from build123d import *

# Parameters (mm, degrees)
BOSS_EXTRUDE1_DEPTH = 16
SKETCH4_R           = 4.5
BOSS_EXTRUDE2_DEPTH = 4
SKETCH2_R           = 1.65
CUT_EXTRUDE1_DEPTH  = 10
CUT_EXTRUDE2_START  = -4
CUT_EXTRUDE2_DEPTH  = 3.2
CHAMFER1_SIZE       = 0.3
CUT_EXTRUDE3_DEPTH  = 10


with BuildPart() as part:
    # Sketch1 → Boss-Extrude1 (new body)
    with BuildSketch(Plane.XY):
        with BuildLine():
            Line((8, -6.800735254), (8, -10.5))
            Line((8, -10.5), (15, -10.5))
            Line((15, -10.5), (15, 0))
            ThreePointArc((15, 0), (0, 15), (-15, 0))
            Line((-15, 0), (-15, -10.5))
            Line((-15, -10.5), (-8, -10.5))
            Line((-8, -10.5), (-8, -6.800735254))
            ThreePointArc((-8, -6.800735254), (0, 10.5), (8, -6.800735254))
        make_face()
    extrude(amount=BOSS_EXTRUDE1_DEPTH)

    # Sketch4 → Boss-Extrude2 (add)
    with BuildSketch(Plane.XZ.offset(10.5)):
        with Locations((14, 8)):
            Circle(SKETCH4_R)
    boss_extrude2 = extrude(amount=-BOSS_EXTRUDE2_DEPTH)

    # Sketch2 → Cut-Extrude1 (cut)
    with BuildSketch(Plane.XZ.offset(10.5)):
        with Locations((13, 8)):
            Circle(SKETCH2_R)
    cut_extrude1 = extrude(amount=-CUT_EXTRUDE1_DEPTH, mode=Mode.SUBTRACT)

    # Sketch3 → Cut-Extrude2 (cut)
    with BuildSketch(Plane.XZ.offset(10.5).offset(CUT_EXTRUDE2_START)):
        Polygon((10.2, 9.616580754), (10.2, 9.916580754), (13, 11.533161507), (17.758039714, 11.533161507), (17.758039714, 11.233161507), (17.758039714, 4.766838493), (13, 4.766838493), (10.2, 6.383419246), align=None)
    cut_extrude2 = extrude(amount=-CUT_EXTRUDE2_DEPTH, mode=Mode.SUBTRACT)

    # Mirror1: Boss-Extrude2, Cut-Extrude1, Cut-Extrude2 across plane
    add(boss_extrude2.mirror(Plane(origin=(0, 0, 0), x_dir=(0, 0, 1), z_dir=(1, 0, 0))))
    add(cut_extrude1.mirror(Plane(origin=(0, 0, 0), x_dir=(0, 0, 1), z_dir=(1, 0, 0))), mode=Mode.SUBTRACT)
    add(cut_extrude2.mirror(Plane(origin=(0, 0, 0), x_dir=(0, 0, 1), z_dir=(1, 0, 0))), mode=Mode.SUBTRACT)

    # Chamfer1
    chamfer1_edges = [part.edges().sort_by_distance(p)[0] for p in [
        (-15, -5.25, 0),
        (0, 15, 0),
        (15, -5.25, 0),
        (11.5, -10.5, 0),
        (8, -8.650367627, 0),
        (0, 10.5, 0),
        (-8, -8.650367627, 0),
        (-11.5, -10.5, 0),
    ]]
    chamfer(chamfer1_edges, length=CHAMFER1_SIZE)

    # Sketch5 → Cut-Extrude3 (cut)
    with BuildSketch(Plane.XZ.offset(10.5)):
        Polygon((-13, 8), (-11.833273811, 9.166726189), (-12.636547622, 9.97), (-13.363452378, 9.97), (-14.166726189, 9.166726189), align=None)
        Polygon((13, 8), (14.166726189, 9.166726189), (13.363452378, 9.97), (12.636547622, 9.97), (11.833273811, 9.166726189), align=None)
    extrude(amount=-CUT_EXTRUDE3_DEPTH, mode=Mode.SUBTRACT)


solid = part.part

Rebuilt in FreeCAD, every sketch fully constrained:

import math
import FreeCAD as App
import Part
import Sketcher

V = App.Vector
Q = App.Units.Quantity


def edges_at(feature, points):
    """Names of the edges that pass closest to the given points."""
    edges = feature.Shape.Edges
    near = lambda p: min(range(len(edges)), key=lambda i: edges[i].distToShape(Part.Vertex(*p))[0])
    return sorted({f"Edge{near(p) + 1}" for p in points})

doc = App.newDocument("Part")
body = doc.addObject("PartDesign::Body", "Body")

sketch1 = doc.addObject("Sketcher::SketchObject", "Sketch")
body.addObject(sketch1)
sketch1.AttachmentSupport = (doc.XY_Plane, [""])
sketch1.MapMode = "FlatFace"
sketch1.addGeometry(Part.LineSegment(V(8, -6.8, 0), V(8, -10.5, 0)), False)
sketch1.addGeometry(Part.LineSegment(V(8, -10.5, 0), V(15, -10.5, 0)), False)
sketch1.addGeometry(Part.LineSegment(V(15, -10.5, 0), V(15, 0, 0)), False)
sketch1.addGeometry(Part.ArcOfCircle(Part.Circle(V(0, 0, 0), V(0, 0, 1), 15), math.radians(0), math.radians(180)), False)
sketch1.addGeometry(Part.LineSegment(V(-15, 0, 0), V(-15, -10.5, 0)), False)
sketch1.addGeometry(Part.LineSegment(V(-15, -10.5, 0), V(-8, -10.5, 0)), False)
sketch1.addGeometry(Part.LineSegment(V(-8, -10.5, 0), V(-8, -6.8, 0)), False)
sketch1.addGeometry(Part.ArcOfCircle(Part.Circle(V(0, 0, 0), V(0, 0, 1), 10.5), math.radians(-40), math.radians(220)), False)
sketch1.addConstraint(Sketcher.Constraint("Coincident", 0, 2, 1, 1))
sketch1.addConstraint(Sketcher.Constraint("Coincident", 1, 2, 2, 1))
sketch1.addConstraint(Sketcher.Constraint("Tangent", 2, 2, 3, 1))
sketch1.addConstraint(Sketcher.Constraint("Tangent", 3, 2, 4, 1))
sketch1.addConstraint(Sketcher.Constraint("Coincident", 4, 2, 5, 1))
sketch1.addConstraint(Sketcher.Constraint("Coincident", 5, 2, 6, 1))
sketch1.addConstraint(Sketcher.Constraint("Coincident", 6, 2, 7, 2))
sketch1.addConstraint(Sketcher.Constraint("Coincident", 7, 1, 0, 1))
sketch1.addConstraint(Sketcher.Constraint("Vertical", 0))
sketch1.addConstraint(Sketcher.Constraint("Horizontal", 1))
sketch1.addConstraint(Sketcher.Constraint("Vertical", 2))
sketch1.addConstraint(Sketcher.Constraint("Vertical", 4))
sketch1.addConstraint(Sketcher.Constraint("Horizontal", 5))
sketch1.addConstraint(Sketcher.Constraint("Vertical", 6))
sketch1.addConstraint(Sketcher.Constraint("Coincident", 3, 3, -1, 1))
sketch1.addConstraint(Sketcher.Constraint("Coincident", 7, 3, -1, 1))
sketch1.addConstraint(Sketcher.Constraint("Symmetric", 0, 2, 5, 2, -2))
sketch1.addConstraint(Sketcher.Constraint("Radius", 3, Q("15 mm")))
sketch1.addConstraint(Sketcher.Constraint("Radius", 7, Q("10.5 mm")))
sketch1.addConstraint(Sketcher.Constraint("DistanceX", 1, 1, 1, 2, Q("7 mm")))
sketch1.addConstraint(Sketcher.Constraint("DistanceY", 2, 1, 2, 2, Q("10.5 mm")))
pad1 = doc.addObject("PartDesign::Pad", "Pad")
body.addObject(pad1)
pad1.Profile = sketch1
pad1.Length = 16

sketch2 = doc.addObject("Sketcher::SketchObject", "Sketch001")
body.addObject(sketch2)
sketch2.AttachmentSupport = (doc.XZ_Plane, [""])
sketch2.MapMode = "FlatFace"
sketch2.AttachmentOffset = App.Placement(V(0, 0, 10.5), App.Rotation())
sketch2.addGeometry(Part.Circle(V(14, 8, 0), V(0, 0, 1), 4.5), False)
sketch2.addConstraint(Sketcher.Constraint("Diameter", 0, Q("9 mm")))
sketch2.addConstraint(Sketcher.Constraint("DistanceX", -1, 1, 0, 3, Q("14 mm")))
sketch2.addConstraint(Sketcher.Constraint("DistanceY", -1, 1, 0, 3, Q("8 mm")))
pad2 = doc.addObject("PartDesign::Pad", "Pad001")
body.addObject(pad2)
pad2.Profile = sketch2
pad2.Length = 4
pad2.Reversed = True

sketch3 = doc.addObject("Sketcher::SketchObject", "Sketch002")
body.addObject(sketch3)
sketch3.AttachmentSupport = (doc.XZ_Plane, [""])
sketch3.MapMode = "FlatFace"
sketch3.AttachmentOffset = App.Placement(V(0, 0, 10.5), App.Rotation())
sketch3.addGeometry(Part.Circle(V(13, 8, 0), V(0, 0, 1), 1.6), False)
sketch3.addConstraint(Sketcher.Constraint("Diameter", 0, Q("3.3 mm")))
sketch3.addConstraint(Sketcher.Constraint("DistanceX", -1, 1, 0, 3, Q("13 mm")))
sketch3.addConstraint(Sketcher.Constraint("DistanceY", -1, 1, 0, 3, Q("8 mm")))
pocket1 = doc.addObject("PartDesign::Pocket", "Pocket")
body.addObject(pocket1)
pocket1.Profile = sketch3
pocket1.Length = 10

sketch4 = doc.addObject("Sketcher::SketchObject", "Sketch003")
body.addObject(sketch4)
sketch4.AttachmentSupport = (doc.XZ_Plane, [""])
sketch4.MapMode = "FlatFace"
sketch4.AttachmentOffset = App.Placement(V(0, 0, 6.5), App.Rotation())
sketch4.addGeometry(Part.LineSegment(V(10.2, 9.9, 0), V(10.2, 6.4, 0)), False)
sketch4.addGeometry(Part.LineSegment(V(10.2, 6.4, 0), V(13, 4.8, 0)), False)
sketch4.addGeometry(Part.LineSegment(V(13, 4.8, 0), V(17.8, 4.8, 0)), False)
sketch4.addGeometry(Part.LineSegment(V(17.8, 4.8, 0), V(17.8, 11.5, 0)), False)
sketch4.addGeometry(Part.LineSegment(V(17.8, 11.5, 0), V(13, 11.5, 0)), False)
sketch4.addGeometry(Part.LineSegment(V(13, 11.5, 0), V(10.2, 9.9, 0)), False)
sketch4.addConstraint(Sketcher.Constraint("Coincident", 0, 2, 1, 1))
sketch4.addConstraint(Sketcher.Constraint("Coincident", 1, 2, 2, 1))
sketch4.addConstraint(Sketcher.Constraint("Coincident", 2, 2, 3, 1))
sketch4.addConstraint(Sketcher.Constraint("Coincident", 3, 2, 4, 1))
sketch4.addConstraint(Sketcher.Constraint("Coincident", 4, 2, 5, 1))
sketch4.addConstraint(Sketcher.Constraint("Coincident", 5, 2, 0, 1))
sketch4.addConstraint(Sketcher.Constraint("Vertical", 0))
sketch4.addConstraint(Sketcher.Constraint("Horizontal", 2))
sketch4.addConstraint(Sketcher.Constraint("Vertical", 3))
sketch4.addConstraint(Sketcher.Constraint("Horizontal", 4))
sketch4.addConstraint(Sketcher.Constraint("Vertical", 1, 2, 4, 2))
sketch4.addConstraint(Sketcher.Constraint("Equal", 1, 5))
sketch4.addConstraint(Sketcher.Constraint("Angle", 1, Q("-30 deg")))
sketch4.addConstraint(Sketcher.Constraint("DistanceX", -1, 1, 1, 2, Q("13 mm")))
sketch4.addConstraint(Sketcher.Constraint("DistanceX", -1, 1, 0, 2, Q("10.2 mm")))
sketch4.addConstraint(Sketcher.Constraint("DistanceX", 2, 1, 2, 2, Q("4.75804 mm")))
sketch4.addConstraint(Sketcher.Constraint("DistanceY", 0, 2, 0, 1, Q("3.533162 mm")))
sketch4.addConstraint(Sketcher.Constraint("DistanceY", -1, 1, 0, 2, Q("6.383419 mm")))
pocket2 = doc.addObject("PartDesign::Pocket", "Pocket001")
body.addObject(pocket2)
pocket2.Profile = sketch4
pocket2.Length = 3.2
doc.recompute()

mirrored = doc.addObject("PartDesign::Mirrored", "Mirrored")
body.addObject(mirrored)
mirrored.Originals = [pad2, pocket1, pocket2]
mirrored.MirrorPlane = (doc.YZ_Plane, [""])
body.Tip = mirrored
doc.recompute()

chamfer = doc.addObject("PartDesign::Chamfer", "Chamfer")
body.addObject(chamfer)
chamfer.Base = (mirrored, edges_at(mirrored, [
    (-15, -5.25, 0),
    (0, 15, 0),
    (15, -5.25, 0),
    (11.5, -10.5, 0),
    (8, -8.65, 0),
    (0, 10.5, 0),
    (-8, -8.65, 0),
    (-11.5, -10.5, 0),
]))
chamfer.Size = 0.3

sketch5 = doc.addObject("Sketcher::SketchObject", "Sketch004")
body.addObject(sketch5)
sketch5.AttachmentSupport = (doc.XZ_Plane, [""])
sketch5.MapMode = "FlatFace"
sketch5.AttachmentOffset = App.Placement(V(0, 0, 10.5), App.Rotation())
sketch5.addGeometry(Part.LineSegment(V(-13, 8, 0), V(-11.8, 9.2, 0)), False)
sketch5.addGeometry(Part.LineSegment(V(-11.8, 9.2, 0), V(-12.6, 10, 0)), False)
sketch5.addGeometry(Part.LineSegment(V(-12.6, 10, 0), V(-13.4, 10, 0)), False)
sketch5.addGeometry(Part.LineSegment(V(-13.4, 10, 0), V(-14.2, 9.2, 0)), False)
sketch5.addGeometry(Part.LineSegment(V(-14.2, 9.2, 0), V(-13, 8, 0)), False)
sketch5.addGeometry(Part.LineSegment(V(13, 8, 0), V(14.2, 9.2, 0)), False)
sketch5.addGeometry(Part.LineSegment(V(14.2, 9.2, 0), V(13.4, 10, 0)), False)
sketch5.addGeometry(Part.LineSegment(V(13.4, 10, 0), V(12.6, 10, 0)), False)
sketch5.addGeometry(Part.LineSegment(V(12.6, 10, 0), V(11.8, 9.2, 0)), False)
sketch5.addGeometry(Part.LineSegment(V(11.8, 9.2, 0), V(13, 8, 0)), False)
sketch5.addConstraint(Sketcher.Constraint("Coincident", 0, 2, 1, 1))
sketch5.addConstraint(Sketcher.Constraint("Coincident", 1, 2, 2, 1))
sketch5.addConstraint(Sketcher.Constraint("Coincident", 2, 2, 3, 1))
sketch5.addConstraint(Sketcher.Constraint("Coincident", 3, 2, 4, 1))
sketch5.addConstraint(Sketcher.Constraint("Coincident", 4, 2, 0, 1))
sketch5.addConstraint(Sketcher.Constraint("Coincident", 5, 2, 6, 1))
sketch5.addConstraint(Sketcher.Constraint("Coincident", 6, 2, 7, 1))
sketch5.addConstraint(Sketcher.Constraint("Coincident", 7, 2, 8, 1))
sketch5.addConstraint(Sketcher.Constraint("Coincident", 8, 2, 9, 1))
sketch5.addConstraint(Sketcher.Constraint("Coincident", 9, 2, 5, 1))
sketch5.addConstraint(Sketcher.Constraint("Horizontal", 2))
sketch5.addConstraint(Sketcher.Constraint("Horizontal", 7))
sketch5.addConstraint(Sketcher.Constraint("Symmetric", 3, 2, 5, 2, -2))
sketch5.addConstraint(Sketcher.Constraint("Symmetric", 2, 2, 6, 2, -2))
sketch5.addConstraint(Sketcher.Constraint("Symmetric", 0, 2, 8, 2, -2))
sketch5.addConstraint(Sketcher.Constraint("Symmetric", 4, 2, 9, 2, -2))
sketch5.addConstraint(Sketcher.Constraint("Perpendicular", 0, 1))
sketch5.addConstraint(Sketcher.Constraint("Perpendicular", 1, 3))
sketch5.addConstraint(Sketcher.Constraint("Perpendicular", 3, 4))
sketch5.addConstraint(Sketcher.Constraint("Perpendicular", 4, 5))
sketch5.addConstraint(Sketcher.Constraint("Perpendicular", 6, 8))
sketch5.addConstraint(Sketcher.Constraint("Horizontal", 0, 2, 3, 2))
sketch5.addConstraint(Sketcher.Constraint("DistanceX", 4, 2, -1, 1, Q("13 mm")))
sketch5.addConstraint(Sketcher.Constraint("DistanceY", -1, 1, 4, 2, Q("8 mm")))
sketch5.addConstraint(Sketcher.Constraint("Distance", 0, Q("1.65 mm")))
sketch5.addConstraint(Sketcher.Constraint("DistanceY", -1, 1, 1, 2, Q("9.97 mm")))
pocket3 = doc.addObject("PartDesign::Pocket", "Pocket002")
body.addObject(pocket3)
pocket3.Profile = sketch5
pocket3.Length = 10

doc.recompute()
